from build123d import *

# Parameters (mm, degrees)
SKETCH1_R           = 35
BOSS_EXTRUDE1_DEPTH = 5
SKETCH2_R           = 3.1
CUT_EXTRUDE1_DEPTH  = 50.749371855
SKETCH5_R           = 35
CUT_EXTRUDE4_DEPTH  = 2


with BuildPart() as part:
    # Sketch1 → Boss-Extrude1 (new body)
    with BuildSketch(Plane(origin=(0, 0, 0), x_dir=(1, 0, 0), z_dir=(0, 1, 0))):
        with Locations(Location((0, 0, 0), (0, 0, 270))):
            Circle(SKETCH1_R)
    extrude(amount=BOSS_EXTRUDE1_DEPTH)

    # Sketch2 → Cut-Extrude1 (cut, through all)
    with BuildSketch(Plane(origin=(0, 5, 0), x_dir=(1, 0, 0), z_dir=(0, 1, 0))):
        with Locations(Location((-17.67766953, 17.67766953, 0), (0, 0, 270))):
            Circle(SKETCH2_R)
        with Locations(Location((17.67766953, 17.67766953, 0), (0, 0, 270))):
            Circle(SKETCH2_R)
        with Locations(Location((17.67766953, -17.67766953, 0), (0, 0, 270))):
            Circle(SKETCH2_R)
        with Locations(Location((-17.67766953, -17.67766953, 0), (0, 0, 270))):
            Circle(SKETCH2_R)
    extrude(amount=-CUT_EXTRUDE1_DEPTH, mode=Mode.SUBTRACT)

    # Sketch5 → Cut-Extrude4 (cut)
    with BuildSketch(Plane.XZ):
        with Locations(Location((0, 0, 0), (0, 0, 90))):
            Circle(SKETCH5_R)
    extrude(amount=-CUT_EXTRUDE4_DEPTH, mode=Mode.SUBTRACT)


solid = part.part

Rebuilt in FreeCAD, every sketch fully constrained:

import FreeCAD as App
import Part
import Sketcher

V = App.Vector
Q = App.Units.Quantity

doc = App.newDocument("Part")
body = doc.addObject("PartDesign::Body", "Body")

# Sketch on XZ plane
sketch1 = body.newObject("Sketcher::SketchObject", "Sketch")
sketch1.AttachmentSupport = (doc.getObject("XZ_Plane"), [""])
sketch1.MapMode = "FlatFace"
sketch1.addGeometry(Part.Circle(V(0, 0, 0), V(0, 0, 1), 35), False)
sketch1.addConstraint(Sketcher.Constraint("Coincident", 0, 3, -1, 1))
sketch1.addConstraint(Sketcher.Constraint("Diameter", 0, Q("70 mm")))
pad1 = body.newObject("PartDesign::Pad", "Pad")
pad1.Profile = sketch1
pad1.Length = 5
pad1.Reversed = True

# Sketch on XZ plane
sketch2 = body.newObject("Sketcher::SketchObject", "Sketch001")
sketch2.AttachmentSupport = (doc.getObject("XZ_Plane"), [""])
sketch2.MapMode = "FlatFace"
sketch2.AttachmentOffset = App.Placement(V(0, 0, -5), App.Rotation())
sketch2.addGeometry(Part.Circle(V(-17.7, -17.7, 0), V(0, 0, 1), 3.1), False)
sketch2.addGeometry(Part.Circle(V(17.7, -17.7, 0), V(0, 0, 1), 3.1), False)
sketch2.addGeometry(Part.Circle(V(17.7, 17.7, 0), V(0, 0, 1), 3.1), False)
sketch2.addGeometry(Part.Circle(V(-17.7, 17.7, 0), V(0, 0, 1), 3.1), False)
sketch2.addConstraint(Sketcher.Constraint("Equal", 0, 1))
sketch2.addConstraint(Sketcher.Constraint("Equal", 1, 2))
sketch2.addConstraint(Sketcher.Constraint("Equal", 2, 3))
sketch2.addConstraint(Sketcher.Constraint("Symmetric", 0, 3, 2, 3, -1, 1))
sketch2.addConstraint(Sketcher.Constraint("Symmetric", 1, 3, 3, 3, -1, 1))
sketch2.addConstraint(Sketcher.Constraint("Symmetric", 0, 3, 1, 3, -2))
sketch2.addConstraint(Sketcher.Constraint("Diameter", 0, Q("6.2 mm")))
sketch2.addConstraint(Sketcher.Constraint("DistanceX", 0, 3, -1, 1, Q("17.67767 mm")))
sketch2.addConstraint(Sketcher.Constraint("DistanceY", 0, 3, -1, 1, Q("17.67767 mm")))
pocket1 = body.newObject("PartDesign::Pocket", "Pocket")
pocket1.Profile = sketch2
pocket1.Type = "ThroughAll"
pocket1.Reversed = True

# Sketch on XZ plane
sketch3 = body.newObject("Sketcher::SketchObject", "Sketch002")
sketch3.AttachmentSupport = (doc.getObject("XZ_Plane"), [""])
sketch3.MapMode = "FlatFace"
sketch3.addGeometry(Part.Circle(V(0, 0, 0), V(0, 0, 1), 35), False)
sketch3.addConstraint(Sketcher.Constraint("Coincident", 0, 3, -1, 1))
sketch3.addConstraint(Sketcher.Constraint("Diameter", 0, Q("70 mm")))
pocket2 = body.newObject("PartDesign::Pocket", "Pocket001")
pocket2.Profile = sketch3
pocket2.Length = 2

doc.recompute()
